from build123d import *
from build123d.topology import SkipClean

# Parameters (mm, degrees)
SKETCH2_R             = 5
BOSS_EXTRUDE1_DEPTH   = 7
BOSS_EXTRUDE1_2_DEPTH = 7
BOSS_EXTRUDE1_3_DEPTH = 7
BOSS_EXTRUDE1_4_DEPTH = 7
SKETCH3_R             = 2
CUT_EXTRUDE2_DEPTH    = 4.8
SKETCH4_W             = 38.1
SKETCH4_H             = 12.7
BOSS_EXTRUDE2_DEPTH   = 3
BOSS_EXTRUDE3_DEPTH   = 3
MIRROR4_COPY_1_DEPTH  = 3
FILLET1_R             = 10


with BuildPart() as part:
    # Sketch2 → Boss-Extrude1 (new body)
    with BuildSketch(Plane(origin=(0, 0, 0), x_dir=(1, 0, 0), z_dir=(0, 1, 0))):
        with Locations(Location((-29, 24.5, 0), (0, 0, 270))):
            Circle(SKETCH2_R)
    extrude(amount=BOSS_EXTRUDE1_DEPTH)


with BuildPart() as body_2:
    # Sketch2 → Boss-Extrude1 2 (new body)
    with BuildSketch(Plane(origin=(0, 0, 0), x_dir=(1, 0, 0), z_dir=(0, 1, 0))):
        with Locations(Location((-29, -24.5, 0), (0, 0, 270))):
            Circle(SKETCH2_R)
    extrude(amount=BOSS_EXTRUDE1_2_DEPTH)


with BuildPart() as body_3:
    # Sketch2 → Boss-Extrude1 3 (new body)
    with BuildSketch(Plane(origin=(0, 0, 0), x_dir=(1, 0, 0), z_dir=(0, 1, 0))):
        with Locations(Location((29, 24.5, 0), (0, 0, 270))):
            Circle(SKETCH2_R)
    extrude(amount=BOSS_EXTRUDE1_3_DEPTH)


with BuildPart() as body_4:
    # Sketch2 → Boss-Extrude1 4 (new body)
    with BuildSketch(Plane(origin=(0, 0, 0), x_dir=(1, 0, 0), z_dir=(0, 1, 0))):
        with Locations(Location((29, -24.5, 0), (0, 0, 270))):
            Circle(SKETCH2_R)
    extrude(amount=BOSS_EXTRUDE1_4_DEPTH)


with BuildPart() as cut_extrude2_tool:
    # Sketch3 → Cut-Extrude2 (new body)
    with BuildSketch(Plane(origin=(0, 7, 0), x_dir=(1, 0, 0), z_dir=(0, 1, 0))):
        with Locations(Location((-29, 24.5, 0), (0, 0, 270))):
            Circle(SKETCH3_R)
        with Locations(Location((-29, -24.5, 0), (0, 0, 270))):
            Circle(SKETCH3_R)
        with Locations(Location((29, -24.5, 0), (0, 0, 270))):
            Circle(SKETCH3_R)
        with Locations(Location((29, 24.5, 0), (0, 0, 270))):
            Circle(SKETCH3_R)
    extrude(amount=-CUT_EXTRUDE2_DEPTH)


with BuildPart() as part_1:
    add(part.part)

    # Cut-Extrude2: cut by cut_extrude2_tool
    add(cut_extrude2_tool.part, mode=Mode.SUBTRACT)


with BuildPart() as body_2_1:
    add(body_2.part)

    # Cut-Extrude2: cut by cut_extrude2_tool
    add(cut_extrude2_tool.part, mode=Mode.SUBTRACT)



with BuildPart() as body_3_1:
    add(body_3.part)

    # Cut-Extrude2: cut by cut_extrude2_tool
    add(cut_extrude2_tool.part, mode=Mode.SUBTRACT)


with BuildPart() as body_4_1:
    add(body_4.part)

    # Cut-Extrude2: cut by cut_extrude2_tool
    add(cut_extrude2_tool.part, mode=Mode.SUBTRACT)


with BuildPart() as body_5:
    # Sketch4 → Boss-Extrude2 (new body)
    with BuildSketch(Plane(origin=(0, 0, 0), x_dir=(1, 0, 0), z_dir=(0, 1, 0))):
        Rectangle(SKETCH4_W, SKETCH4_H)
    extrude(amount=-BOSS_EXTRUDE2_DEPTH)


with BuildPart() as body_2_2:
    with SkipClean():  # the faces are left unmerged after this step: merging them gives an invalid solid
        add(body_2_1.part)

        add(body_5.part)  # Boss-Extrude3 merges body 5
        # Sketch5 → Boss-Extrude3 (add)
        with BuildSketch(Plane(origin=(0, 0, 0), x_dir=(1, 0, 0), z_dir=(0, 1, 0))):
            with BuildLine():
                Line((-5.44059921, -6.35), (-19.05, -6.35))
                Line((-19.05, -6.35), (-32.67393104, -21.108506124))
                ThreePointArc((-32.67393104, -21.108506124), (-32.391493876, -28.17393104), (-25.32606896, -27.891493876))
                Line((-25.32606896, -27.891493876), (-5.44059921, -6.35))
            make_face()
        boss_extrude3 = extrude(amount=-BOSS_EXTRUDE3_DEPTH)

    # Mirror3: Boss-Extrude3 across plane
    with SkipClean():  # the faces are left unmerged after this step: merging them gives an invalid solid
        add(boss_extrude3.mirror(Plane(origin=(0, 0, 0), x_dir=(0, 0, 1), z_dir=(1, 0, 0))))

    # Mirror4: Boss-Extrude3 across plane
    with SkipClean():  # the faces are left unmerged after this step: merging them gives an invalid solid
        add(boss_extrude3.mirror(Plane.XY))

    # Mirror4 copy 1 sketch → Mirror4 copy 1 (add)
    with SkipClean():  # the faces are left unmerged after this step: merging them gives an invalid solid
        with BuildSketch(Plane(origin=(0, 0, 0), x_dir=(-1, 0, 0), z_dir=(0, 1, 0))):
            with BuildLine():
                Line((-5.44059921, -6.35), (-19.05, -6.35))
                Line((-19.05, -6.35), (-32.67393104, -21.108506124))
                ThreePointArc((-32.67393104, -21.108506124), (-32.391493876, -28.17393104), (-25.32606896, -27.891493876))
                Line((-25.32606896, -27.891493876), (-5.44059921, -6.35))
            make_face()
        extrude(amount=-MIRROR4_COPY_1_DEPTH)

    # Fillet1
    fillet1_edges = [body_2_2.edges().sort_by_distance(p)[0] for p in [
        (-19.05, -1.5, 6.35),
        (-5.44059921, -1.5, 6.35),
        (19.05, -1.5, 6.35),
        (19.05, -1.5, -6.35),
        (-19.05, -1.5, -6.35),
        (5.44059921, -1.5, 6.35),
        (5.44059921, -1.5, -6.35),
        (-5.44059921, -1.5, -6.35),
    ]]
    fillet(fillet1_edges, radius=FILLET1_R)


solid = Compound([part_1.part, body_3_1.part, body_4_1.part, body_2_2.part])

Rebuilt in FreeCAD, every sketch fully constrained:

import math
import FreeCAD as App
import Part
import Sketcher
from FreeCAD import Vector
Q = App.Units.Quantity


def edges_at(feature, points):
    """Names of the edges that pass closest to the given points."""
    edges = feature.Shape.Edges
    near = lambda p: min(range(len(edges)), key=lambda i: edges[i].distToShape(Part.Vertex(*p))[0])
    return sorted({f"Edge{near(p) + 1}" for p in points})

doc = App.newDocument("Part")
body = doc.addObject("PartDesign::Body", "Body")

# Sketch on XZ plane
sketch1 = body.newObject("Sketcher::SketchObject", "Sketch")
sketch1.AttachmentSupport = (doc.getObject("XZ_Plane"), [""])
sketch1.MapMode = "FlatFace"
sketch1.addGeometry(Part.Circle(Vector(-29, -24, 0), Vector(0, 0, 1), 5), False)
sketch1.addConstraint([
    Sketcher.Constraint("Diameter", 0, Q("10 mm")),
    Sketcher.Constraint("DistanceX", 0, 3, -1, 1, Q("29 mm")),
    Sketcher.Constraint("DistanceY", 0, 3, -1, 1, Q("24.5 mm")),
])
pad1 = body.newObject("PartDesign::Pad", "Pad")
pad1.Profile = sketch1
pad1.Length = 7
pad1.Reversed = True
body2 = doc.addObject("PartDesign::Body", "Body001")

# Sketch on XZ plane
sketch2 = body2.newObject("Sketcher::SketchObject", "Sketch001")
sketch2.AttachmentSupport = (doc.getObject("XZ_Plane001"), [""])
sketch2.MapMode = "FlatFace"
sketch2.addGeometry(Part.Circle(Vector(-29, 24, 0), Vector(0, 0, 1), 5), False)
sketch2.addConstraint([
    Sketcher.Constraint("Diameter", 0, Q("10 mm")),
    Sketcher.Constraint("DistanceX", 0, 3, -1, 1, Q("29 mm")),
    Sketcher.Constraint("DistanceY", -1, 1, 0, 3, Q("24.5 mm")),
])
pad2 = body2.newObject("PartDesign::Pad", "Pad001")
pad2.Profile = sketch2
pad2.Length = 7
pad2.Reversed = True
body3 = doc.addObject("PartDesign::Body", "Body002")

# Sketch on XZ plane
sketch3 = body3.newObject("Sketcher::SketchObject", "Sketch002")
sketch3.AttachmentSupport = (doc.getObject("XZ_Plane002"), [""])
sketch3.MapMode = "FlatFace"
sketch3.addGeometry(Part.Circle(Vector(29, -24, 0), Vector(0, 0, 1), 5), False)
sketch3.addConstraint([
    Sketcher.Constraint("Diameter", 0, Q("10 mm")),
    Sketcher.Constraint("DistanceX", -1, 1, 0, 3, Q("29 mm")),
    Sketcher.Constraint("DistanceY", 0, 3, -1, 1, Q("24.5 mm")),
])
pad3 = body3.newObject("PartDesign::Pad", "Pad002")
pad3.Profile = sketch3
pad3.Length = 7
pad3.Reversed = True
body4 = doc.addObject("PartDesign::Body", "Body003")

# Sketch on XZ plane
sketch4 = body4.newObject("Sketcher::SketchObject", "Sketch003")
sketch4.AttachmentSupport = (doc.getObject("XZ_Plane003"), [""])
sketch4.MapMode = "FlatFace"
sketch4.addGeometry(Part.Circle(Vector(29, 24, 0), Vector(0, 0, 1), 5), False)
sketch4.addConstraint([
    Sketcher.Constraint("Diameter", 0, Q("10 mm")),
    Sketcher.Constraint("DistanceX", -1, 1, 0, 3, Q("29 mm")),
    Sketcher.Constraint("DistanceY", -1, 1, 0, 3, Q("24.5 mm")),
])
pad4 = body4.newObject("PartDesign::Pad", "Pad003")
pad4.Profile = sketch4
pad4.Length = 7
pad4.Reversed = True
body5 = doc.addObject("PartDesign::Body", "Body004")
body5.AllowCompound = True

# Sketch on XZ plane
sketch5 = body5.newObject("Sketcher::SketchObject", "Sketch004")
sketch5.AttachmentSupport = (doc.getObject("XZ_Plane004"), [""])
sketch5.MapMode = "FlatFace"
sketch5.AttachmentOffset = App.Placement(Vector(0, 0, -7), App.Rotation())
sketch5.addGeometry([
    Part.Circle(Vector(-29, -24.5, 0), Vector(0, 0, 1), 2),
    Part.Circle(Vector(-29, 24.5, 0), Vector(0, 0, 1), 2),
    Part.Circle(Vector(29, 24.5, 0), Vector(0, 0, 1), 2),
    Part.Circle(Vector(29, -24.5, 0), Vector(0, 0, 1), 2),
], False)
sketch5.addConstraint([
    Sketcher.Constraint("Equal", 0, 1),
    Sketcher.Constraint("Equal", 1, 2),
    Sketcher.Constraint("Equal", 2, 3),
    Sketcher.Constraint("Symmetric", 0, 3, 2, 3, -1, 1),
    Sketcher.Constraint("Symmetric", 1, 3, 3, 3, -1, 1),
    Sketcher.Constraint("Symmetric", 1, 3, 2, 3, -2),
    Sketcher.Constraint("Diameter", 0, Q("4 mm")),
    Sketcher.Constraint("DistanceX", 0, 3, -1, 1, Q("29 mm")),
    Sketcher.Constraint("DistanceY", 0, 3, 1, 3, Q("49 mm")),
])
pad5 = body5.newObject("PartDesign::Pad", "Pad004")
pad5.Profile = sketch5
pad5.Length = 4.8
doc.recompute()

body6 = doc.addObject("PartDesign::Body", "Body005")
body6.BaseFeature = body5
boolean = body.newObject("PartDesign::Boolean", "Boolean")
boolean.Type = "Cut"
boolean.addObjects([body6])
doc.recompute()

body7 = doc.addObject("PartDesign::Body", "Body006")
body7.BaseFeature = body5
boolean2 = body2.newObject("PartDesign::Boolean", "Boolean001")
boolean2.Type = "Cut"
boolean2.addObjects([body7])
doc.recompute()

body8 = doc.addObject("PartDesign::Body", "Body007")
body8.BaseFeature = body5
boolean3 = body3.newObject("PartDesign::Boolean", "Boolean002")
boolean3.Type = "Cut"
boolean3.addObjects([body8])
doc.recompute()

boolean4 = body4.newObject("PartDesign::Boolean", "Boolean003")
boolean4.Type = "Cut"
boolean4.addObjects([body5])
body9 = doc.addObject("PartDesign::Body", "Body008")

# Sketch on XZ plane
sketch6 = body9.newObject("Sketcher::SketchObject", "Sketch005")
sketch6.AttachmentSupport = (doc.getObject("XZ_Plane008"), [""])
sketch6.MapMode = "FlatFace"
sketch6.addGeometry([
    Part.LineSegment(Vector(-19, -6, 0), Vector(-19, 6, 0)),
    Part.LineSegment(Vector(-19, 6, 0), Vector(19, 6, 0)),
    Part.LineSegment(Vector(19, 6, 0), Vector(19, -6, 0)),
    Part.LineSegment(Vector(19, -6, 0), Vector(-19, -6, 0)),
], False)
sketch6.addConstraint([
    Sketcher.Constraint("Coincident", 0, 2, 1, 1),
    Sketcher.Constraint("Coincident", 1, 2, 2, 1),
    Sketcher.Constraint("Coincident", 2, 2, 3, 1),
    Sketcher.Constraint("Coincident", 3, 2, 0, 1),
    Sketcher.Constraint("Vertical", 0),
    Sketcher.Constraint("Horizontal", 1),
    Sketcher.Constraint("Vertical", 2),
    Sketcher.Constraint("Horizontal", 3),
    Sketcher.Constraint("Symmetric", 0, 2, 2, 2, -1, 1),
    Sketcher.Constraint("DistanceX", 1, 1, 1, 2, Q("38.1 mm")),
    Sketcher.Constraint("DistanceY", 0, 1, 0, 2, Q("12.7 mm")),
])
pad6 = body9.newObject("PartDesign::Pad", "Pad005")
pad6.Profile = sketch6
pad6.Length = 3
body2.AllowCompound = True
doc.recompute()

boolean5 = body2.newObject("PartDesign::Boolean", "Boolean004")
boolean5.Type = "Fuse"
boolean5.addObjects([body9])

# Sketch on XZ plane
sketch7 = body2.newObject("Sketcher::SketchObject", "Sketch006")
sketch7.AttachmentSupport = (doc.getObject("XZ_Plane001"), [""])
sketch7.MapMode = "FlatFace"
sketch7.addGeometry([
    Part.LineSegment(Vector(-5, 6, 0), Vector(-19, 6, 0)),
    Part.LineSegment(Vector(-19, 6, 0), Vector(-33, 21, 0)),
    Part.ArcOfCircle(Part.Circle(Vector(-29, 24, 0), Vector(0, 0, 1), 5), math.radians(43), math.radians(223)),
    Part.LineSegment(Vector(-25, 28, 0), Vector(-5, 6, 0)),
], False)
sketch7.addConstraint([
    Sketcher.Constraint("Coincident", 0, 2, 1, 1),
    Sketcher.Constraint("Tangent", 1, 2, 2, 2),
    Sketcher.Constraint("Tangent", 2, 1, 3, 1),
    Sketcher.Constraint("Coincident", 3, 2, 0, 1),
    Sketcher.Constraint("Horizontal", 0),
    Sketcher.Constraint("Parallel", 1, 3),
    Sketcher.Constraint("Radius", 2, Q("5 mm")),
    Sketcher.Constraint("DistanceX", 2, 3, -1, 1, Q("29 mm")),
    Sketcher.Constraint("DistanceY", -1, 1, 2, 3, Q("24.5 mm")),
    Sketcher.Constraint("DistanceX", 0, 2, -1, 1, Q("19.05 mm")),
    Sketcher.Constraint("DistanceY", -1, 1, 0, 2, Q("6.35 mm")),
])
pad7 = body2.newObject("PartDesign::Pad", "Pad006")
pad7.Profile = sketch7
pad7.Length = 3
doc.recompute()

mirrored = body2.newObject("PartDesign::Mirrored", "Mirrored")
mirrored.Originals = [pad7]
mirrored.MirrorPlane = (doc.getObject("YZ_Plane001"), [""])
body2.Tip = mirrored
doc.recompute()

mirrored2 = body2.newObject("PartDesign::Mirrored", "Mirrored001")
mirrored2.Originals = [pad7]
mirrored2.MirrorPlane = (doc.getObject("XY_Plane001"), [""])
body2.Tip = mirrored2

# Sketch on XZ plane
sketch8 = body2.newObject("Sketcher::SketchObject", "Sketch007")
sketch8.AttachmentSupport = (doc.getObject("XZ_Plane001"), [""])
sketch8.MapMode = "FlatFace"
sketch8.addGeometry([
    Part.LineSegment(Vector(5, -6, 0), Vector(19, -6, 0)),
    Part.LineSegment(Vector(19, -6, 0), Vector(33, -21, 0)),
    Part.ArcOfCircle(Part.Circle(Vector(29, -24, 0), Vector(0, 0, 1), 5), math.radians(-137), math.radians(43)),
    Part.LineSegment(Vector(25, -28, 0), Vector(5, -6, 0)),
], False)
sketch8.addConstraint([
    Sketcher.Constraint("Coincident", 0, 2, 1, 1),
    Sketcher.Constraint("Tangent", 1, 2, 2, 2),
    Sketcher.Constraint("Tangent", 2, 1, 3, 1),
    Sketcher.Constraint("Coincident", 3, 2, 0, 1),
    Sketcher.Constraint("Horizontal", 0),
    Sketcher.Constraint("Parallel", 1, 3),
    Sketcher.Constraint("Radius", 2, Q("5 mm")),
    Sketcher.Constraint("DistanceX", -1, 1, 2, 3, Q("29 mm")),
    Sketcher.Constraint("DistanceY", 2, 3, -1, 1, Q("24.5 mm")),
    Sketcher.Constraint("DistanceX", -1, 1, 0, 2, Q("19.05 mm")),
    Sketcher.Constraint("DistanceY", 0, 2, -1, 1, Q("6.35 mm")),
])
pad8 = body2.newObject("PartDesign::Pad", "Pad007")
pad8.Profile = sketch8
pad8.Length = 3
doc.recompute()

fillet = body2.newObject("PartDesign::Fillet", "Fillet")
fillet.Base = (pad8, edges_at(pad8, [
    (-19.05, -1.5, 6.35),
    (-5.441, -1.5, 6.35),
    (19.05, -1.5, 6.35),
    (19.05, -1.5, -6.35),
    (-19.05, -1.5, -6.35),
    (5.441, -1.5, 6.35),
    (5.441, -1.5, -6.35),
    (-5.441, -1.5, -6.35),
]))
fillet.Radius = 10

doc.recompute()
